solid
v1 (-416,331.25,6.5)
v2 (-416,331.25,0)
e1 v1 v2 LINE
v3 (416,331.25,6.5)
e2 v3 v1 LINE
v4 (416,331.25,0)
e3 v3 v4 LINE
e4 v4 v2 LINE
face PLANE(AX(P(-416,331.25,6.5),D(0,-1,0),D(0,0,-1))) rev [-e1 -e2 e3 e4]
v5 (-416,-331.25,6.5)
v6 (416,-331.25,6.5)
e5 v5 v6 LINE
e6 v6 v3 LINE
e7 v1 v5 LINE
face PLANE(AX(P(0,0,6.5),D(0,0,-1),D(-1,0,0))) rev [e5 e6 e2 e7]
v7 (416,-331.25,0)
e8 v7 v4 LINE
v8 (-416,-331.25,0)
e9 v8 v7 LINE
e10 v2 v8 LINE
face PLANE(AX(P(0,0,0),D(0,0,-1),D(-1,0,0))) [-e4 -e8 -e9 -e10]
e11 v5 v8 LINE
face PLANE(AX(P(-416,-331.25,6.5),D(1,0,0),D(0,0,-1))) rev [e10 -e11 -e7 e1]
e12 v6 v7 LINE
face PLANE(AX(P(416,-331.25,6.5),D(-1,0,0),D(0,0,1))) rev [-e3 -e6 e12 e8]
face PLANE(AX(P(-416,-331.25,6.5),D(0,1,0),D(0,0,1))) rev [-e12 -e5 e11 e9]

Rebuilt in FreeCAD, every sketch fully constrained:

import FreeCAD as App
import Part
import Sketcher
from FreeCAD import Vector

doc = App.newDocument("Part")
body = doc.addObject("PartDesign::Body", "Body")

sketch1 = body.newObject("Sketcher::SketchObject", "Sketch")
sketch1.AttachmentSupport = (doc.getObject("XY_Plane"), [""])
sketch1.MapMode = "FlatFace"
sketch1.addGeometry(Part.LineSegment(Vector(-416, 331, 0), Vector(-416, -331, 0)), False)
sketch1.addGeometry(Part.LineSegment(Vector(-416, -331, 0), Vector(416, -331, 0)), False)
sketch1.addGeometry(Part.LineSegment(Vector(416, -331, 0), Vector(416, 331, 0)), False)
sketch1.addGeometry(Part.LineSegment(Vector(416, 331, 0), Vector(-416, 331, 0)), False)
sketch1.addConstraint(Sketcher.Constraint("Coincident", 0, 2, 1, 1))
sketch1.addConstraint(Sketcher.Constraint("Coincident", 1, 2, 2, 1))
sketch1.addConstraint(Sketcher.Constraint("Coincident", 2, 2, 3, 1))
sketch1.addConstraint(Sketcher.Constraint("Coincident", 3, 2, 0, 1))
sketch1.addConstraint(Sketcher.Constraint("Vertical", 0))
sketch1.addConstraint(Sketcher.Constraint("Horizontal", 1))
sketch1.addConstraint(Sketcher.Constraint("Vertical", 2))
sketch1.addConstraint(Sketcher.Constraint("Horizontal", 3))
sketch1.addConstraint(Sketcher.Constraint("Symmetric", 0, 2, 2, 2, -1, 1))
sketch1.addConstraint(Sketcher.Constraint("DistanceX", 1, 1, 1, 2, 832.0))
sketch1.addConstraint(Sketcher.Constraint("DistanceY", 0, 2, 0, 1, 662.5))
pad1 = body.newObject("PartDesign::Pad", "Pad")
pad1.Profile = sketch1
pad1.Length = 6.5

doc.recompute()
